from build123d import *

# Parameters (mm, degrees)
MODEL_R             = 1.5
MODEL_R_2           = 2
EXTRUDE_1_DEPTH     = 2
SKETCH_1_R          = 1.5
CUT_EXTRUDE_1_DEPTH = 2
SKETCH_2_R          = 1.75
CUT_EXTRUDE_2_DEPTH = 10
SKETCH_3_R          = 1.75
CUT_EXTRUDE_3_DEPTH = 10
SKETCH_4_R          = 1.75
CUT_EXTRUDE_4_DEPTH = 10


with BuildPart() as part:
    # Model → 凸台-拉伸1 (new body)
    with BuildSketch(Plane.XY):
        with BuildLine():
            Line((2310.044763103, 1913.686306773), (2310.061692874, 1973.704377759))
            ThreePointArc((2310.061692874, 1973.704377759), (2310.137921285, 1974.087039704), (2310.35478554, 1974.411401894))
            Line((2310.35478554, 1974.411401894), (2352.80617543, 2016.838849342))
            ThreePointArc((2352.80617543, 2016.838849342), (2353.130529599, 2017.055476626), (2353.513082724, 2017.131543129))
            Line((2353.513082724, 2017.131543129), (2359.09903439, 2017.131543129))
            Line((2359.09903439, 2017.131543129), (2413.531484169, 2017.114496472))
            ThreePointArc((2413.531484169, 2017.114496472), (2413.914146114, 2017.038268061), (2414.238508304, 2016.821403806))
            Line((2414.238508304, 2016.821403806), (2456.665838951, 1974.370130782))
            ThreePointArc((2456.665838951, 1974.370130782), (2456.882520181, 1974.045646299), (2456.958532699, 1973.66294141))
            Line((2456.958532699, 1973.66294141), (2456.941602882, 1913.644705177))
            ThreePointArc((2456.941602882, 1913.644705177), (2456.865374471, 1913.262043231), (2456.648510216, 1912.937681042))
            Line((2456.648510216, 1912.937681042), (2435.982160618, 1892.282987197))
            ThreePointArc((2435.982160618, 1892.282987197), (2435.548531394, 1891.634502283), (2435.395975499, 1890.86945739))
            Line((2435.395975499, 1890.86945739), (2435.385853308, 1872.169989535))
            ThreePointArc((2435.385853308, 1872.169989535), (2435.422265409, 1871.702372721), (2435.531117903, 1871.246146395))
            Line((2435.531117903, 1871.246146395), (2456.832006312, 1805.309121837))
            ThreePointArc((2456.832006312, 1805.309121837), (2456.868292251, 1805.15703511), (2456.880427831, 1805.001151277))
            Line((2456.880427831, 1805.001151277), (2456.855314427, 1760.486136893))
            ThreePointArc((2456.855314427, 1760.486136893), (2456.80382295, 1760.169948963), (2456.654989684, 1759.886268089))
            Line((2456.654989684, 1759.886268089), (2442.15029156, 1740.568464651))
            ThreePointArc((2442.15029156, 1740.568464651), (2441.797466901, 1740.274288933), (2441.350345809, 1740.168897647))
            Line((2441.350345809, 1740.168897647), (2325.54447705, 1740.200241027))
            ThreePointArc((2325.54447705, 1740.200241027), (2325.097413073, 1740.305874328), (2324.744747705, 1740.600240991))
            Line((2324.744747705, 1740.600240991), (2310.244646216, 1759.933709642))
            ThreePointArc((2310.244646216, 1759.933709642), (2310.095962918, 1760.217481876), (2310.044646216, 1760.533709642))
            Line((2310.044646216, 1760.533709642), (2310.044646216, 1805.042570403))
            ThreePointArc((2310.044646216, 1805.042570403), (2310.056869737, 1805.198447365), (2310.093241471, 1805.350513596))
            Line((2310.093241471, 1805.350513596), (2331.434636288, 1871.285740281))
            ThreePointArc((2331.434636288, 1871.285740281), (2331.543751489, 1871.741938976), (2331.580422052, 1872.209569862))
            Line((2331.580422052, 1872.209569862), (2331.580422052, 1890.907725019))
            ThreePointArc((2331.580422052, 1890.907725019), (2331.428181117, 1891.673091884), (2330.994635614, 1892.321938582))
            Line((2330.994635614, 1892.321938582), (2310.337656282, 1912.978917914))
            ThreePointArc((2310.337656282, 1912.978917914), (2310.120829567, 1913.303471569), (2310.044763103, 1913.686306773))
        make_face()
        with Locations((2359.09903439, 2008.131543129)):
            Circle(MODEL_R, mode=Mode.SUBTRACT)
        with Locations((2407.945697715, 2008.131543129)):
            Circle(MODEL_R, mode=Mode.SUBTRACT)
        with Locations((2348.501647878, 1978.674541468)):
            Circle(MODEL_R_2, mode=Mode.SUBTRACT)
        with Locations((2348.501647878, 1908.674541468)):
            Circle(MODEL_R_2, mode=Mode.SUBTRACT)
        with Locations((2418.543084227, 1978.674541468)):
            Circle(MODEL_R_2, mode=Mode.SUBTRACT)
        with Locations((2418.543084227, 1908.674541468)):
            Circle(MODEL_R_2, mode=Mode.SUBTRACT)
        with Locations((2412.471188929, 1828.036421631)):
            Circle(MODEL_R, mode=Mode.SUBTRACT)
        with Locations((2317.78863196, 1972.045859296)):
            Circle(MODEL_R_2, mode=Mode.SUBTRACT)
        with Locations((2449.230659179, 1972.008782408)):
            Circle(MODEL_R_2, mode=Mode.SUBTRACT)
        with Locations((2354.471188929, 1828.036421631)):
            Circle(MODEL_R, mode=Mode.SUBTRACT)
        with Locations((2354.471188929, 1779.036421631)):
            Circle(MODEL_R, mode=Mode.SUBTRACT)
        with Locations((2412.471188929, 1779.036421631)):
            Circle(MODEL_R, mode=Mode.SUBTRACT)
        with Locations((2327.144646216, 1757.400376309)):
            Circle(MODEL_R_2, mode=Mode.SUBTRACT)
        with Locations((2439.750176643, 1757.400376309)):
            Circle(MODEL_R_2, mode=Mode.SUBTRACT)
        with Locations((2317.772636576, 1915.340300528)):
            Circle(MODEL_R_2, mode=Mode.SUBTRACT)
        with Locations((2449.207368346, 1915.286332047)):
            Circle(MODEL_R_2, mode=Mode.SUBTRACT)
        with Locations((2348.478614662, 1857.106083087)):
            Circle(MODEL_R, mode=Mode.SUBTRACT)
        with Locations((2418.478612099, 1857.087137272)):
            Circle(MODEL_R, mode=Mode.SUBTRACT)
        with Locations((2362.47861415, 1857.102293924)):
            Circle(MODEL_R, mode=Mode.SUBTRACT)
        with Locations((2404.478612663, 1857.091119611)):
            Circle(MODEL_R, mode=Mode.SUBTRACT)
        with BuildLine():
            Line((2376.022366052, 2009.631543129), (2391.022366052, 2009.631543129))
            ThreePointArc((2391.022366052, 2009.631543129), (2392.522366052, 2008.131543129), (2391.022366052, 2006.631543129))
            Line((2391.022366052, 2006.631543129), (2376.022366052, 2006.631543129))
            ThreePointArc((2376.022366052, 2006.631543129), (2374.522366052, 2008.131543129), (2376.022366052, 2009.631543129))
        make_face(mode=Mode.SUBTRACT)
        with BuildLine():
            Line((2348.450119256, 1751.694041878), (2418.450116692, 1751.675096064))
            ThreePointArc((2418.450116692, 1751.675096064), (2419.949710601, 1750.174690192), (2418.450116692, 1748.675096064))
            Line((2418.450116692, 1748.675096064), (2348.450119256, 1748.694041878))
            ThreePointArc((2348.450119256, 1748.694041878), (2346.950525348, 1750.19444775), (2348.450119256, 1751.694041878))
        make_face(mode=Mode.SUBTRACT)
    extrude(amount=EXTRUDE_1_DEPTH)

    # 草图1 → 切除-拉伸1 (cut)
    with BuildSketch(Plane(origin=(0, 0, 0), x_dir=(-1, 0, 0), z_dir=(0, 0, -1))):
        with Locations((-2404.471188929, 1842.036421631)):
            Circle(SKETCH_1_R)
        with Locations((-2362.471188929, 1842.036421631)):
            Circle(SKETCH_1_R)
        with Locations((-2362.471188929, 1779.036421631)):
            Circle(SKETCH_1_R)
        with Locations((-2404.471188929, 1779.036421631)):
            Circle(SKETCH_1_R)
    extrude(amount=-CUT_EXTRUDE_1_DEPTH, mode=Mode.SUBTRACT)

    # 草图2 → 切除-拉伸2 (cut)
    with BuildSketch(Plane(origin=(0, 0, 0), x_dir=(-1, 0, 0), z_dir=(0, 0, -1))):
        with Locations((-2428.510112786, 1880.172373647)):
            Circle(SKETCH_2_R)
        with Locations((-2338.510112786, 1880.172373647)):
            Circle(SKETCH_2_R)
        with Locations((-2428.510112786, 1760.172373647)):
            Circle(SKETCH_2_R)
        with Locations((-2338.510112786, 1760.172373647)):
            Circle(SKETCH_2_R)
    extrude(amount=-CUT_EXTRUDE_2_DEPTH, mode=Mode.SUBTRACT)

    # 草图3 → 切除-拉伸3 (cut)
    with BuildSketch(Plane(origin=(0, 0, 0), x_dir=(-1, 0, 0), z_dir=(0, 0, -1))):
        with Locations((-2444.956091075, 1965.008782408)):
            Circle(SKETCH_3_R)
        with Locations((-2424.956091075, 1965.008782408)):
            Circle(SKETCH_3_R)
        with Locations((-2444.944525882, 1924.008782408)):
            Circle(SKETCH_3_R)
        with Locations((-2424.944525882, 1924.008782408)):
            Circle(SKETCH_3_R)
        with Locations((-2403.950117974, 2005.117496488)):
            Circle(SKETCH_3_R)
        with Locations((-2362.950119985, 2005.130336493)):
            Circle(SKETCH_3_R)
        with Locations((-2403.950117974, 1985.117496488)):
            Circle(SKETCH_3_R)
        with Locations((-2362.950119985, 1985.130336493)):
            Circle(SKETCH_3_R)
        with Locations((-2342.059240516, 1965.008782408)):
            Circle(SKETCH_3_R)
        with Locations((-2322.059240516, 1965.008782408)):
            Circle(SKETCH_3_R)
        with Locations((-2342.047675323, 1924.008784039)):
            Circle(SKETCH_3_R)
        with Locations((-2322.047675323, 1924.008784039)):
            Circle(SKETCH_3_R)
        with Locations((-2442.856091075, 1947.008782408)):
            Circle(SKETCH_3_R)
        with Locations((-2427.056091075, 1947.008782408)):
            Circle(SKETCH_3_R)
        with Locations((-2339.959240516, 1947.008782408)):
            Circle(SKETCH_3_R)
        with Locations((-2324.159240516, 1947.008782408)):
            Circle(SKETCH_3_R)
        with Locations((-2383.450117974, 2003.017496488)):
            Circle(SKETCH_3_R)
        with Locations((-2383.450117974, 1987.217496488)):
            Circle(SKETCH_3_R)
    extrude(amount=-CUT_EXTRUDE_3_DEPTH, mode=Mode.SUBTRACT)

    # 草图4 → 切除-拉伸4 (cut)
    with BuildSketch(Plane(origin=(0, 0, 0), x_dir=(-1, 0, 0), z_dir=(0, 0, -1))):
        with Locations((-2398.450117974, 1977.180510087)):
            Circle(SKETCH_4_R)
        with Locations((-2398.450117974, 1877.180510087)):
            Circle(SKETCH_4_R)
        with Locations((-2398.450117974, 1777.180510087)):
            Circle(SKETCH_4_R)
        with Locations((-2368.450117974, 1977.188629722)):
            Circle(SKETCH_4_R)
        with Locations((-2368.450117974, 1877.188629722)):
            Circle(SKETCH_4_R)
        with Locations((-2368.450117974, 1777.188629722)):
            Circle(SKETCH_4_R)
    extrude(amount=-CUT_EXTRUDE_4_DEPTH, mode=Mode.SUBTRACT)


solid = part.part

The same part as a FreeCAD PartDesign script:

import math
import FreeCAD as App
import Part
import Sketcher
Q = App.Units.Quantity

doc = App.newDocument("Part")
body = doc.addObject("PartDesign::Body", "Body")

# Sketch on XY plane
sketch1 = body.newObject("Sketcher::SketchObject", "Sketch")
sketch1.AttachmentSupport = (doc.getObject("XY_Plane"), [""])
sketch1.MapMode = "FlatFace"
sketch1.addGeometry(Part.LineSegment(App.Vector(2310.061693, 1973.704378, 0), App.Vector(2310.044763, 1913.686307, 0)), False)
sketch1.addGeometry(Part.ArcOfCircle(Part.Circle(App.Vector(2311.044763, 1913.686025, 0), App.Vector(0, 0, 1), 1), math.radians(179.983838), math.radians(225)), False)
sketch1.addGeometry(Part.LineSegment(App.Vector(2310.337656, 1912.978918, 0), App.Vector(2330.994636, 1892.321939, 0)), False)
sketch1.addGeometry(Part.ArcOfCircle(Part.Circle(App.Vector(2329.580422, 1890.907725, 0), App.Vector(0, 0, 1), 2), math.radians(0), math.radians(45)), False)
sketch1.addGeometry(Part.LineSegment(App.Vector(2331.580422, 1890.907725, 0), App.Vector(2331.580422, 1872.20957, 0)), False)
sketch1.addGeometry(Part.ArcOfCircle(Part.Circle(App.Vector(2328.580422, 1872.20957, 0), App.Vector(0, 0, 1), 3), math.radians(-17.935321), math.radians(0)), False)
sketch1.addGeometry(Part.LineSegment(App.Vector(2331.434636, 1871.28574, 0), App.Vector(2310.093241, 1805.350514, 0)), False)
sketch1.addGeometry(Part.ArcOfCircle(Part.Circle(App.Vector(2311.044646, 1805.04257, 0), App.Vector(0, 0, 1), 1), math.radians(162.064678), math.radians(180)), False)
sketch1.addGeometry(Part.LineSegment(App.Vector(2310.044646, 1805.04257, 0), App.Vector(2310.044646, 1760.53371, 0)), False)
sketch1.addGeometry(Part.ArcOfCircle(Part.Circle(App.Vector(2311.044646, 1760.53371, 0), App.Vector(0, 0, 1), 1), math.radians(180), math.radians(216.869898)), False)
sketch1.addGeometry(Part.LineSegment(App.Vector(2310.244646, 1759.93371, 0), App.Vector(2324.744748, 1740.600241, 0)), False)
sketch1.addGeometry(Part.ArcOfCircle(Part.Circle(App.Vector(2325.544748, 1741.200241, 0), App.Vector(0, 0, 1), 1), math.radians(-143.130102), math.radians(-90.015507)), False)
sketch1.addGeometry(Part.LineSegment(App.Vector(2325.544477, 1740.200241, 0), App.Vector(2441.350346, 1740.168898, 0)), False)
sketch1.addGeometry(Part.ArcOfCircle(Part.Circle(App.Vector(2441.350616, 1741.168898, 0), App.Vector(0, 0, 1), 1), math.radians(-90.015507), math.radians(-36.900912)), False)
sketch1.addGeometry(Part.LineSegment(App.Vector(2442.150292, 1740.568465, 0), App.Vector(2456.65499, 1759.886268, 0)), False)
sketch1.addGeometry(Part.ArcOfCircle(Part.Circle(App.Vector(2455.855315, 1760.486701, 0), App.Vector(0, 0, 1), 1), math.radians(-36.900912), math.radians(-0.032324)), False)
sketch1.addGeometry(Part.LineSegment(App.Vector(2456.855314, 1760.486137, 0), App.Vector(2456.880428, 1805.001151, 0)), False)
sketch1.addGeometry(Part.ArcOfCircle(Part.Circle(App.Vector(2455.880428, 1805.001715, 0), App.Vector(0, 0, 1), 1), math.radians(-0.032324), math.radians(17.902998)), False)
sketch1.addGeometry(Part.LineSegment(App.Vector(2456.832006, 1805.309122, 0), App.Vector(2435.531118, 1871.246146, 0)), False)
sketch1.addGeometry(Part.ArcOfCircle(Part.Circle(App.Vector(2438.385853, 1872.168366, 0), App.Vector(0, 0, 1), 3), math.radians(179.968985), math.radians(197.902998)), False)
sketch1.addGeometry(Part.LineSegment(App.Vector(2435.385853, 1872.16999, 0), App.Vector(2435.395975, 1890.869457, 0)), False)
sketch1.addGeometry(Part.ArcOfCircle(Part.Circle(App.Vector(2437.395975, 1890.868375, 0), App.Vector(0, 0, 1), 2), math.radians(134.983838), math.radians(179.968985)), False)
sketch1.addGeometry(Part.LineSegment(App.Vector(2435.982161, 1892.282987, 0), App.Vector(2456.64851, 1912.937681, 0)), False)
sketch1.addGeometry(Part.ArcOfCircle(Part.Circle(App.Vector(2455.941603, 1913.644987, 0), App.Vector(0, 0, 1), 1), math.radians(-45.016162), math.radians(-0.016162)), False)
sketch1.addGeometry(Part.LineSegment(App.Vector(2456.941603, 1913.644705, 0), App.Vector(2456.958533, 1973.662941, 0)), False)
sketch1.addGeometry(Part.ArcOfCircle(Part.Circle(App.Vector(2455.958533, 1973.663223, 0), App.Vector(0, 0, 1), 1), math.radians(-0.016162), math.radians(44.983838)), False)
sketch1.addGeometry(Part.LineSegment(App.Vector(2456.665839, 1974.370131, 0), App.Vector(2414.238508, 2016.821404, 0)), False)
sketch1.addGeometry(Part.ArcOfCircle(Part.Circle(App.Vector(2413.531202, 2016.114497, 0), App.Vector(0, 0, 1), 1), math.radians(44.983838), math.radians(89.983838)), False)
sketch1.addGeometry(Part.LineSegment(App.Vector(2413.531484, 2017.114496, 0), App.Vector(2359.099034, 2017.131543, 0)), False)
sketch1.addGeometry(Part.LineSegment(App.Vector(2359.099034, 2017.131543, 0), App.Vector(2353.513083, 2017.131543, 0)), False)
sketch1.addGeometry(Part.ArcOfCircle(Part.Circle(App.Vector(2353.513083, 2016.131543, 0), App.Vector(0, 0, 1), 1), math.radians(90), math.radians(134.983838)), False)
sketch1.addGeometry(Part.LineSegment(App.Vector(2352.806175, 2016.838849, 0), App.Vector(2310.354786, 1974.411402, 0)), False)
sketch1.addGeometry(Part.ArcOfCircle(Part.Circle(App.Vector(2311.061693, 1973.704096, 0), App.Vector(0, 0, 1), 1), math.radians(134.983838), math.radians(179.983838)), False)
sketch1.addGeometry(Part.Circle(App.Vector(2439.750177, 1757.400376, 0), App.Vector(0, 0, 1), 2), False)
sketch1.addGeometry(Part.Circle(App.Vector(2412.471189, 1779.036422, 0), App.Vector(0, 0, 1), 1.5), False)
sketch1.addGeometry(Part.Circle(App.Vector(2418.478612, 1857.087137, 0), App.Vector(0, 0, 1), 1.5), False)
sketch1.addGeometry(Part.Circle(App.Vector(2412.471189, 1828.036422, 0), App.Vector(0, 0, 1), 1.5), False)
sketch1.addGeometry(Part.Circle(App.Vector(2404.478613, 1857.09112, 0), App.Vector(0, 0, 1), 1.5), False)
sketch1.addGeometry(Part.LineSegment(App.Vector(2348.450119, 1751.694042, 0), App.Vector(2418.450117, 1751.675096, 0)), False)
sketch1.addGeometry(Part.ArcOfCircle(Part.Circle(App.Vector(2418.449711, 1750.175096, 0), App.Vector(0, 0, 1), 1.5), math.radians(-89.984488), math.radians(89.984488)), False)
sketch1.addGeometry(Part.LineSegment(App.Vector(2418.450117, 1748.675096, 0), App.Vector(2348.450119, 1748.694042, 0)), False)
sketch1.addGeometry(Part.ArcOfCircle(Part.Circle(App.Vector(2348.450525, 1750.194042, 0), App.Vector(0, 0, 1), 1.5), math.radians(90.015512), math.radians(269.984488)), False)
sketch1.addGeometry(Part.Circle(App.Vector(2354.471189, 1779.036422, 0), App.Vector(0, 0, 1), 1.5), False)
sketch1.addGeometry(Part.Circle(App.Vector(2327.144646, 1757.400376, 0), App.Vector(0, 0, 1), 2), False)
sketch1.addGeometry(Part.Circle(App.Vector(2354.471189, 1828.036422, 0), App.Vector(0, 0, 1), 1.5), False)
sketch1.addGeometry(Part.Circle(App.Vector(2362.478614, 1857.102294, 0), App.Vector(0, 0, 1), 1.5), False)
sketch1.addGeometry(Part.Circle(App.Vector(2348.478615, 1857.106083, 0), App.Vector(0, 0, 1), 1.5), False)
sketch1.addGeometry(Part.Circle(App.Vector(2418.543084, 1908.674541, 0), App.Vector(0, 0, 1), 2), False)
sketch1.addGeometry(Part.Circle(App.Vector(2449.207368, 1915.286332, 0), App.Vector(0, 0, 1), 2), False)
sketch1.addGeometry(Part.Circle(App.Vector(2449.230659, 1972.008782, 0), App.Vector(0, 0, 1), 2), False)
sketch1.addGeometry(Part.Circle(App.Vector(2418.543084, 1978.674541, 0), App.Vector(0, 0, 1), 2), False)
sketch1.addGeometry(Part.Circle(App.Vector(2407.945698, 2008.131543, 0), App.Vector(0, 0, 1), 1.5), False)
sketch1.addGeometry(Part.LineSegment(App.Vector(2376.022366, 2009.631543, 0), App.Vector(2391.022366, 2009.631543, 0)), False)
sketch1.addGeometry(Part.ArcOfCircle(Part.Circle(App.Vector(2391.022366, 2008.131543, 0), App.Vector(0, 0, 1), 1.5), math.radians(-90), math.radians(90)), False)
sketch1.addGeometry(Part.LineSegment(App.Vector(2391.022366, 2006.631543, 0), App.Vector(2376.022366, 2006.631543, 0)), False)
sketch1.addGeometry(Part.ArcOfCircle(Part.Circle(App.Vector(2376.022366, 2008.131543, 0), App.Vector(0, 0, 1), 1.5), math.radians(90), math.radians(270)), False)
sketch1.addGeometry(Part.Circle(App.Vector(2348.501648, 1908.674541, 0), App.Vector(0, 0, 1), 2), False)
sketch1.addGeometry(Part.Circle(App.Vector(2317.772637, 1915.340301, 0), App.Vector(0, 0, 1), 2), False)
sketch1.addGeometry(Part.Circle(App.Vector(2359.099034, 2008.131543, 0), App.Vector(0, 0, 1), 1.5), False)
sketch1.addGeometry(Part.Circle(App.Vector(2317.788632, 1972.045859, 0), App.Vector(0, 0, 1), 2), False)
sketch1.addGeometry(Part.Circle(App.Vector(2348.501648, 1978.674541, 0), App.Vector(0, 0, 1), 2), False)
sketch1.addConstraint(Sketcher.Constraint("Coincident", 0, 2, 1, 1))
sketch1.addConstraint(Sketcher.Constraint("Coincident", 1, 2, 2, 1))
sketch1.addConstraint(Sketcher.Constraint("Coincident", 2, 2, 3, 2))
sketch1.addConstraint(Sketcher.Constraint("Coincident", 3, 1, 4, 1))
sketch1.addConstraint(Sketcher.Constraint("Coincident", 4, 2, 5, 2))
sketch1.addConstraint(Sketcher.Constraint("Coincident", 5, 1, 6, 1))
sketch1.addConstraint(Sketcher.Constraint("Coincident", 6, 2, 7, 1))
sketch1.addConstraint(Sketcher.Constraint("Coincident", 7, 2, 8, 1))
sketch1.addConstraint(Sketcher.Constraint("Coincident", 8, 2, 9, 1))
sketch1.addConstraint(Sketcher.Constraint("Coincident", 9, 2, 10, 1))
sketch1.addConstraint(Sketcher.Constraint("Coincident", 10, 2, 11, 1))
sketch1.addConstraint(Sketcher.Constraint("Coincident", 11, 2, 12, 1))
sketch1.addConstraint(Sketcher.Constraint("Coincident", 12, 2, 13, 1))
sketch1.addConstraint(Sketcher.Constraint("Coincident", 13, 2, 14, 1))
sketch1.addConstraint(Sketcher.Constraint("Coincident", 14, 2, 15, 1))
sketch1.addConstraint(Sketcher.Constraint("Coincident", 15, 2, 16, 1))
sketch1.addConstraint(Sketcher.Constraint("Coincident", 16, 2, 17, 1))
sketch1.addConstraint(Sketcher.Constraint("Coincident", 17, 2, 18, 1))
sketch1.addConstraint(Sketcher.Constraint("Coincident", 18, 2, 19, 2))
sketch1.addConstraint(Sketcher.Constraint("Coincident", 19, 1, 20, 1))
sketch1.addConstraint(Sketcher.Constraint("Coincident", 20, 2, 21, 2))
sketch1.addConstraint(Sketcher.Constraint("Coincident", 21, 1, 22, 1))
sketch1.addConstraint(Sketcher.Constraint("Coincident", 22, 2, 23, 1))
sketch1.addConstraint(Sketcher.Constraint("Coincident", 23, 2, 24, 1))
sketch1.addConstraint(Sketcher.Constraint("Coincident", 24, 2, 25, 1))
sketch1.addConstraint(Sketcher.Constraint("Coincident", 25, 2, 26, 1))
sketch1.addConstraint(Sketcher.Constraint("Coincident", 26, 2, 27, 1))
sketch1.addConstraint(Sketcher.Constraint("Coincident", 27, 2, 28, 1))
sketch1.addConstraint(Sketcher.Constraint("Coincident", 28, 2, 29, 1))
sketch1.addConstraint(Sketcher.Constraint("Coincident", 29, 2, 30, 1))
sketch1.addConstraint(Sketcher.Constraint("Coincident", 30, 2, 31, 1))
sketch1.addConstraint(Sketcher.Constraint("Coincident", 31, 2, 32, 1))
sketch1.addConstraint(Sketcher.Constraint("Coincident", 32, 2, 0, 1))
sketch1.addConstraint(Sketcher.Constraint("Coincident", 38, 2, 39, 2))
sketch1.addConstraint(Sketcher.Constraint("Coincident", 39, 1, 40, 1))
sketch1.addConstraint(Sketcher.Constraint("Coincident", 40, 2, 41, 2))
sketch1.addConstraint(Sketcher.Constraint("Coincident", 41, 1, 38, 1))
sketch1.addConstraint(Sketcher.Constraint("Coincident", 52, 2, 53, 2))
sketch1.addConstraint(Sketcher.Constraint("Coincident", 53, 1, 54, 1))
sketch1.addConstraint(Sketcher.Constraint("Coincident", 54, 2, 55, 2))
sketch1.addConstraint(Sketcher.Constraint("Coincident", 55, 1, 52, 1))
sketch1.addConstraint(Sketcher.Constraint("Vertical", 4))
sketch1.addConstraint(Sketcher.Constraint("Vertical", 8))
sketch1.addConstraint(Sketcher.Constraint("Horizontal", 29))
sketch1.addConstraint(Sketcher.Constraint("Horizontal", 52))
sketch1.addConstraint(Sketcher.Constraint("Horizontal", 54))
sketch1.addConstraint(Sketcher.Constraint("Diameter", 33, Q("4 mm")))
sketch1.addConstraint(Sketcher.Constraint("Diameter", 34, Q("3 mm")))
sketch1.addConstraint(Sketcher.Constraint("Diameter", 35, Q("3 mm")))
sketch1.addConstraint(Sketcher.Constraint("Diameter", 36, Q("3 mm")))
sketch1.addConstraint(Sketcher.Constraint("Diameter", 37, Q("3 mm")))
sketch1.addConstraint(Sketcher.Constraint("Diameter", 42, Q("3 mm")))
sketch1.addConstraint(Sketcher.Constraint("Diameter", 43, Q("4 mm")))
sketch1.addConstraint(Sketcher.Constraint("Diameter", 44, Q("3 mm")))
sketch1.addConstraint(Sketcher.Constraint("Diameter", 45, Q("3 mm")))
sketch1.addConstraint(Sketcher.Constraint("Diameter", 46, Q("3 mm")))
sketch1.addConstraint(Sketcher.Constraint("Diameter", 47, Q("4 mm")))
sketch1.addConstraint(Sketcher.Constraint("Diameter", 48, Q("4 mm")))
sketch1.addConstraint(Sketcher.Constraint("Diameter", 49, Q("4 mm")))
sketch1.addConstraint(Sketcher.Constraint("Diameter", 50, Q("4 mm")))
sketch1.addConstraint(Sketcher.Constraint("Diameter", 51, Q("3 mm")))
sketch1.addConstraint(Sketcher.Constraint("Diameter", 56, Q("4 mm")))
sketch1.addConstraint(Sketcher.Constraint("Diameter", 57, Q("4 mm")))
sketch1.addConstraint(Sketcher.Constraint("Diameter", 58, Q("3 mm")))
sketch1.addConstraint(Sketcher.Constraint("Diameter", 59, Q("4 mm")))
sketch1.addConstraint(Sketcher.Constraint("Diameter", 60, Q("4 mm")))
sketch1.addConstraint(Sketcher.Constraint("Radius", 1, Q("1 mm")))
sketch1.addConstraint(Sketcher.Constraint("Radius", 3, Q("2 mm")))
sketch1.addConstraint(Sketcher.Constraint("Radius", 5, Q("3 mm")))
sketch1.addConstraint(Sketcher.Constraint("Radius", 7, Q("1 mm")))
sketch1.addConstraint(Sketcher.Constraint("Radius", 9, Q("1 mm")))
sketch1.addConstraint(Sketcher.Constraint("Radius", 11, Q("1 mm")))
sketch1.addConstraint(Sketcher.Constraint("Radius", 13, Q("1 mm")))
sketch1.addConstraint(Sketcher.Constraint("Radius", 15, Q("1 mm")))
sketch1.addConstraint(Sketcher.Constraint("Radius", 17, Q("1 mm")))
sketch1.addConstraint(Sketcher.Constraint("Radius", 19, Q("3 mm")))
sketch1.addConstraint(Sketcher.Constraint("Radius", 21, Q("2 mm")))
sketch1.addConstraint(Sketcher.Constraint("Radius", 23, Q("1 mm")))
sketch1.addConstraint(Sketcher.Constraint("Radius", 25, Q("1 mm")))
sketch1.addConstraint(Sketcher.Constraint("Radius", 27, Q("1 mm")))
sketch1.addConstraint(Sketcher.Constraint("Radius", 30, Q("1 mm")))
sketch1.addConstraint(Sketcher.Constraint("Radius", 32, Q("1 mm")))
sketch1.addConstraint(Sketcher.Constraint("Radius", 39, Q("1.5 mm")))
sketch1.addConstraint(Sketcher.Constraint("Radius", 41, Q("1.5 mm")))
sketch1.addConstraint(Sketcher.Constraint("Radius", 53, Q("1.5 mm")))
sketch1.addConstraint(Sketcher.Constraint("DistanceX", 52, 1, 52, 2, Q("15 mm")))
sketch1.addConstraint(Sketcher.Constraint("DistanceX", 54, 2, 54, 1, Q("15 mm")))
sketch1.addConstraint(Sketcher.Constraint("Distance", 38, Q("70 mm")))
sketch1.addConstraint(Sketcher.Constraint("Distance", 40, Q("70 mm")))
sketch1.addConstraint(Sketcher.Constraint("DistanceX", 29, 2, 29, 1, Q("5.585952 mm")))
sketch1.addConstraint(Sketcher.Constraint("DistanceY", 8, 2, 8, 1, Q("44.508861 mm")))
sketch1.addConstraint(Sketcher.Constraint("DistanceY", -1, 1, 15, 3, Q("1760.486701 mm")))
sketch1.addConstraint(Sketcher.Constraint("DistanceY", -1, 1, 57, 3, Q("1915.340301 mm")))
sketch1.addConstraint(Sketcher.Constraint("DistanceY", -1, 1, 31, 2, Q("1974.411402 mm")))
sketch1.addConstraint(Sketcher.Constraint("Distance", 2, Q("29.21338 mm")))
sketch1.addConstraint(Sketcher.Constraint("Distance", 16, Q("44.515021 mm")))
sketch1.addConstraint(Sketcher.Constraint("Distance", 20, Q("18.699471 mm")))
sketch1.addConstraint(Sketcher.Constraint("Distance", 22, Q("29.218391 mm")))
sketch1.addConstraint(Sketcher.Constraint("Distance", 24, Q("60.018239 mm")))
sketch1.addConstraint(Sketcher.Constraint("Distance", 26, Q("60.018239 mm")))
sketch1.addConstraint(Sketcher.Constraint("DistanceY", 4, 2, 4, 1, Q("18.698155 mm")))
sketch1.addConstraint(Sketcher.Constraint("DistanceY", -1, 1, 5, 3, Q("1872.20957 mm")))
sketch1.addConstraint(Sketcher.Constraint("DistanceY", -1, 1, 7, 3, Q("1805.04257 mm")))
sketch1.addConstraint(Sketcher.Constraint("DistanceY", -1, 1, 9, 3, Q("1760.53371 mm")))
sketch1.addConstraint(Sketcher.Constraint("DistanceY", -1, 1, 11, 3, Q("1741.200241 mm")))
sketch1.addConstraint(Sketcher.Constraint("DistanceX", -1, 1, 34, 3, Q("2412.471189 mm")))
sketch1.addConstraint(Sketcher.Constraint("DistanceY", -1, 1, 34, 3, Q("1779.036422 mm")))
sketch1.addConstraint(Sketcher.Constraint("DistanceX", -1, 1, 36, 3, Q("2412.471189 mm")))
sketch1.addConstraint(Sketcher.Constraint("DistanceY", -1, 1, 36, 3, Q("1828.036422 mm")))
sketch1.addConstraint(Sketcher.Constraint("DistanceY", -1, 1, 37, 3, Q("1857.09112 mm")))
sketch1.addConstraint(Sketcher.Constraint("DistanceX", -1, 1, 39, 3, Q("2418.449711 mm")))
sketch1.addConstraint(Sketcher.Constraint("DistanceY", -1, 1, 41, 3, Q("1750.194042 mm")))
sketch1.addConstraint(Sketcher.Constraint("DistanceX", -1, 1, 42, 3, Q("2354.471189 mm")))
sketch1.addConstraint(Sketcher.Constraint("DistanceY", -1, 1, 42, 3, Q("1779.036422 mm")))
sketch1.addConstraint(Sketcher.Constraint("DistanceX", -1, 1, 44, 3, Q("2354.471189 mm")))
sketch1.addConstraint(Sketcher.Constraint("DistanceY", -1, 1, 44, 3, Q("1828.036422 mm")))
sketch1.addConstraint(Sketcher.Constraint("DistanceY", -1, 1, 47, 3, Q("1908.674541 mm")))
sketch1.addConstraint(Sketcher.Constraint("DistanceX", -1, 1, 48, 3, Q("2449.207368 mm")))
sketch1.addConstraint(Sketcher.Constraint("DistanceX", -1, 1, 49, 3, Q("2449.230659 mm")))
sketch1.addConstraint(Sketcher.Constraint("DistanceY", -1, 1, 50, 3, Q("1978.674541 mm")))
sketch1.addConstraint(Sketcher.Constraint("DistanceY", -1, 1, 56, 3, Q("1908.674541 mm")))
sketch1.addConstraint(Sketcher.Constraint("DistanceX", -1, 1, 59, 3, Q("2317.788632 mm")))
sketch1.addConstraint(Sketcher.Constraint("DistanceY", -1, 1, 59, 3, Q("1972.045859 mm")))
sketch1.addConstraint(Sketcher.Constraint("DistanceY", -1, 1, 60, 3, Q("1978.674541 mm")))
sketch1.addConstraint(Sketcher.Constraint("DistanceY", -1, 1, 2, 2, Q("1892.321939 mm")))
sketch1.addConstraint(Sketcher.Constraint("DistanceY", -1, 1, 4, 2, Q("1872.20957 mm")))
sketch1.addConstraint(Sketcher.Constraint("DistanceY", -1, 1, 5, 1, Q("1871.28574 mm")))
sketch1.addConstraint(Sketcher.Constraint("DistanceX", -1, 1, 6, 2, Q("2310.093241 mm")))
sketch1.addConstraint(Sketcher.Constraint("DistanceY", -1, 1, 7, 2, Q("1805.04257 mm")))
sketch1.addConstraint(Sketcher.Constraint("DistanceY", -1, 1, 9, 2, Q("1759.93371 mm")))
sketch1.addConstraint(Sketcher.Constraint("DistanceY", -1, 1, 10, 2, Q("1740.600241 mm")))
sketch1.addConstraint(Sketcher.Constraint("DistanceX", -1, 1, 13, 2, Q("2442.150292 mm")))
sketch1.addConstraint(Sketcher.Constraint("DistanceX", -1, 1, 14, 2, Q("2456.65499 mm")))
sketch1.addConstraint(Sketcher.Constraint("DistanceY", -1, 1, 14, 2, Q("1759.886268 mm")))
sketch1.addConstraint(Sketcher.Constraint("DistanceY", -1, 1, 16, 2, Q("1805.001151 mm")))
sketch1.addConstraint(Sketcher.Constraint("DistanceY", -1, 1, 17, 2, Q("1805.309122 mm")))
sketch1.addConstraint(Sketcher.Constraint("DistanceY", -1, 1, 19, 1, Q("1872.16999 mm")))
sketch1.addConstraint(Sketcher.Constraint("DistanceX", -1, 1, 21, 1, Q("2435.982161 mm")))
sketch1.addConstraint(Sketcher.Constraint("DistanceX", -1, 1, 22, 2, Q("2456.64851 mm")))
sketch1.addConstraint(Sketcher.Constraint("DistanceY", -1, 1, 22, 2, Q("1912.937681 mm")))
sketch1.addConstraint(Sketcher.Constraint("DistanceY", -1, 1, 24, 2, Q("1973.662941 mm")))
sketch1.addConstraint(Sketcher.Constraint("DistanceX", -1, 1, 25, 2, Q("2456.665839 mm")))
sketch1.addConstraint(Sketcher.Constraint("DistanceY", -1, 1, 25, 2, Q("1974.370131 mm")))
sketch1.addConstraint(Sketcher.Constraint("DistanceX", -1, 1, 26, 2, Q("2414.238508 mm")))
sketch1.addConstraint(Sketcher.Constraint("DistanceY", -1, 1, 30, 2, Q("2016.838849 mm")))
sketch1.addConstraint(Sketcher.Constraint("DistanceX", -1, 1, 40, 2, Q("2348.450119 mm")))
sketch1.addConstraint(Sketcher.Constraint("DistanceX", -1, 1, 41, 1, Q("2348.450119 mm")))
sketch1.addConstraint(Sketcher.Constraint("Distance", 0, Q("60.018073 mm")))
sketch1.addConstraint(Sketcher.Constraint("Distance", 6, Q("69.303025 mm")))
sketch1.addConstraint(Sketcher.Constraint("Distance", 10, Q("24.166836 mm")))
sketch1.addConstraint(Sketcher.Constraint("Distance", 12, Q("115.805873 mm")))
sketch1.addConstraint(Sketcher.Constraint("Distance", 14, Q("24.157065 mm")))
sketch1.addConstraint(Sketcher.Constraint("Distance", 18, Q("69.292273 mm")))
sketch1.addConstraint(Sketcher.Constraint("Distance", 28, Q("54.432452 mm")))
sketch1.addConstraint(Sketcher.Constraint("Distance", 31, Q("60.018404 mm")))
sketch1.addConstraint(Sketcher.Constraint("DistanceX", -1, 1, 1, 3, Q("2311.044763 mm")))
sketch1.addConstraint(Sketcher.Constraint("DistanceY", -1, 1, 1, 3, Q("1913.686025 mm")))
sketch1.addConstraint(Sketcher.Constraint("DistanceX", -1, 1, 3, 3, Q("2329.580422 mm")))
sketch1.addConstraint(Sketcher.Constraint("DistanceY", -1, 1, 3, 3, Q("1890.907725 mm")))
sketch1.addConstraint(Sketcher.Constraint("DistanceX", -1, 1, 13, 3, Q("2441.350616 mm")))
sketch1.addConstraint(Sketcher.Constraint("DistanceX", -1, 1, 17, 3, Q("2455.880428 mm")))
sketch1.addConstraint(Sketcher.Constraint("DistanceY", -1, 1, 17, 3, Q("1805.001715 mm")))
sketch1.addConstraint(Sketcher.Constraint("DistanceX", -1, 1, 19, 3, Q("2438.385853 mm")))
sketch1.addConstraint(Sketcher.Constraint("DistanceY", -1, 1, 19, 3, Q("1872.168366 mm")))
sketch1.addConstraint(Sketcher.Constraint("DistanceX", -1, 1, 21, 3, Q("2437.395975 mm")))
sketch1.addConstraint(Sketcher.Constraint("DistanceX", -1, 1, 23, 3, Q("2455.941603 mm")))
sketch1.addConstraint(Sketcher.Constraint("DistanceX", -1, 1, 25, 3, Q("2455.958533 mm")))
sketch1.addConstraint(Sketcher.Constraint("DistanceX", -1, 1, 27, 3, Q("2413.531202 mm")))
sketch1.addConstraint(Sketcher.Constraint("DistanceX", -1, 1, 30, 3, Q("2353.513083 mm")))
sketch1.addConstraint(Sketcher.Constraint("DistanceY", -1, 1, 30, 3, Q("2016.131543 mm")))
sketch1.addConstraint(Sketcher.Constraint("DistanceX", -1, 1, 32, 3, Q("2311.061693 mm")))
sketch1.addConstraint(Sketcher.Constraint("DistanceX", -1, 1, 33, 3, Q("2439.750177 mm")))
sketch1.addConstraint(Sketcher.Constraint("DistanceY", -1, 1, 33, 3, Q("1757.400376 mm")))
sketch1.addConstraint(Sketcher.Constraint("DistanceX", -1, 1, 35, 3, Q("2418.478612 mm")))
sketch1.addConstraint(Sketcher.Constraint("DistanceY", -1, 1, 35, 3, Q("1857.087137 mm")))
sketch1.addConstraint(Sketcher.Constraint("DistanceX", -1, 1, 37, 3, Q("2404.478613 mm")))
sketch1.addConstraint(Sketcher.Constraint("DistanceY", -1, 1, 39, 3, Q("1750.175096 mm")))
sketch1.addConstraint(Sketcher.Constraint("DistanceX", -1, 1, 41, 3, Q("2348.450525 mm")))
sketch1.addConstraint(Sketcher.Constraint("DistanceX", -1, 1, 43, 3, Q("2327.144646 mm")))
sketch1.addConstraint(Sketcher.Constraint("DistanceY", -1, 1, 43, 3, Q("1757.400376 mm")))
sketch1.addConstraint(Sketcher.Constraint("DistanceX", -1, 1, 45, 3, Q("2362.478614 mm")))
sketch1.addConstraint(Sketcher.Constraint("DistanceY", -1, 1, 45, 3, Q("1857.102294 mm")))
sketch1.addConstraint(Sketcher.Constraint("DistanceX", -1, 1, 46, 3, Q("2348.478615 mm")))
sketch1.addConstraint(Sketcher.Constraint("DistanceY", -1, 1, 46, 3, Q("1857.106083 mm")))
sketch1.addConstraint(Sketcher.Constraint("DistanceX", -1, 1, 47, 3, Q("2418.543084 mm")))
sketch1.addConstraint(Sketcher.Constraint("DistanceY", -1, 1, 48, 3, Q("1915.286332 mm")))
sketch1.addConstraint(Sketcher.Constraint("DistanceY", -1, 1, 49, 3, Q("1972.008782 mm")))
sketch1.addConstraint(Sketcher.Constraint("DistanceX", -1, 1, 50, 3, Q("2418.543084 mm")))
sketch1.addConstraint(Sketcher.Constraint("DistanceX", -1, 1, 51, 3, Q("2407.945698 mm")))
sketch1.addConstraint(Sketcher.Constraint("DistanceY", -1, 1, 51, 3, Q("2008.131543 mm")))
sketch1.addConstraint(Sketcher.Constraint("DistanceX", -1, 1, 53, 3, Q("2391.022366 mm")))
sketch1.addConstraint(Sketcher.Constraint("DistanceY", -1, 1, 53, 3, Q("2008.131543 mm")))
sketch1.addConstraint(Sketcher.Constraint("DistanceX", -1, 1, 55, 3, Q("2376.022366 mm")))
sketch1.addConstraint(Sketcher.Constraint("DistanceX", -1, 1, 56, 3, Q("2348.501648 mm")))
sketch1.addConstraint(Sketcher.Constraint("DistanceX", -1, 1, 57, 3, Q("2317.772637 mm")))
sketch1.addConstraint(Sketcher.Constraint("DistanceX", -1, 1, 58, 3, Q("2359.099034 mm")))
sketch1.addConstraint(Sketcher.Constraint("DistanceY", -1, 1, 58, 3, Q("2008.131543 mm")))
sketch1.addConstraint(Sketcher.Constraint("DistanceX", -1, 1, 60, 3, Q("2348.501648 mm")))
sketch1.addConstraint(Sketcher.Constraint("DistanceY", -1, 1, 0, 2, Q("1913.686307 mm")))
sketch1.addConstraint(Sketcher.Constraint("DistanceX", -1, 1, 11, 2, Q("2325.544477 mm")))
sketch1.addConstraint(Sketcher.Constraint("DistanceX", -1, 1, 27, 2, Q("2413.531484 mm")))
sketch1.addConstraint(Sketcher.Constraint("DistanceX", -1, 1, 52, 2, Q("2391.022366 mm")))
sketch1.addConstraint(Sketcher.Constraint("DistanceX", -1, 1, 53, 1, Q("2391.022366 mm")))
pad1 = body.newObject("PartDesign::Pad", "Pad")
pad1.Profile = sketch1
pad1.Length = 2

# Sketch on XY plane
sketch2 = body.newObject("Sketcher::SketchObject", "Sketch001")
sketch2.AttachmentSupport = (doc.getObject("XY_Plane"), [""])
sketch2.MapMode = "FlatFace"
sketch2.addGeometry(Part.Circle(App.Vector(2404.5, 1842, 0), App.Vector(0, 0, 1), 1.5), False)
sketch2.addGeometry(Part.Circle(App.Vector(2362.5, 1842, 0), App.Vector(0, 0, 1), 1.5), False)
sketch2.addGeometry(Part.Circle(App.Vector(2362.5, 1779, 0), App.Vector(0, 0, 1), 1.5), False)
sketch2.addGeometry(Part.Circle(App.Vector(2404.5, 1779, 0), App.Vector(0, 0, 1), 1.5), False)
sketch2.addConstraint(Sketcher.Constraint("Equal", 0, 1))
sketch2.addConstraint(Sketcher.Constraint("Equal", 1, 2))
sketch2.addConstraint(Sketcher.Constraint("Equal", 2, 3))
sketch2.addConstraint(Sketcher.Constraint("Horizontal", 0, 3, 1, 3))
sketch2.addConstraint(Sketcher.Constraint("Horizontal", 2, 3, 3, 3))
sketch2.addConstraint(Sketcher.Constraint("Vertical", 1, 3, 2, 3))
sketch2.addConstraint(Sketcher.Constraint("Vertical", 0, 3, 3, 3))
sketch2.addConstraint(Sketcher.Constraint("Diameter", 0, Q("3 mm")))
sketch2.addConstraint(Sketcher.Constraint("DistanceX", 1, 3, 0, 3, Q("42 mm")))
sketch2.addConstraint(Sketcher.Constraint("DistanceY", 2, 3, 1, 3, Q("63 mm")))
sketch2.addConstraint(Sketcher.Constraint("DistanceX", -1, 1, 0, 3, Q("2404.471189 mm")))
sketch2.addConstraint(Sketcher.Constraint("DistanceY", -1, 1, 0, 3, Q("1842.036422 mm")))
pocket1 = body.newObject("PartDesign::Pocket", "Pocket")
pocket1.Profile = sketch2
pocket1.Length = 2
pocket1.Reversed = True

# Sketch on XY plane
sketch3 = body.newObject("Sketcher::SketchObject", "Sketch002")
sketch3.AttachmentSupport = (doc.getObject("XY_Plane"), [""])
sketch3.MapMode = "FlatFace"
sketch3.addGeometry(Part.Circle(App.Vector(2428.5, 1880.2, 0), App.Vector(0, 0, 1), 1.8), False)
sketch3.addGeometry(Part.Circle(App.Vector(2338.5, 1880.2, 0), App.Vector(0, 0, 1), 1.8), False)
sketch3.addGeometry(Part.Circle(App.Vector(2428.5, 1760.2, 0), App.Vector(0, 0, 1), 1.8), False)
sketch3.addGeometry(Part.Circle(App.Vector(2338.5, 1760.2, 0), App.Vector(0, 0, 1), 1.8), False)
sketch3.addConstraint(Sketcher.Constraint("Equal", 0, 1))
sketch3.addConstraint(Sketcher.Constraint("Equal", 1, 2))
sketch3.addConstraint(Sketcher.Constraint("Equal", 2, 3))
sketch3.addConstraint(Sketcher.Constraint("Horizontal", 0, 3, 1, 3))
sketch3.addConstraint(Sketcher.Constraint("Horizontal", 2, 3, 3, 3))
sketch3.addConstraint(Sketcher.Constraint("Vertical", 0, 3, 2, 3))
sketch3.addConstraint(Sketcher.Constraint("Vertical", 1, 3, 3, 3))
sketch3.addConstraint(Sketcher.Constraint("Diameter", 0, Q("3.5 mm")))
sketch3.addConstraint(Sketcher.Constraint("DistanceX", 1, 3, 0, 3, Q("90 mm")))
sketch3.addConstraint(Sketcher.Constraint("DistanceY", 2, 3, 0, 3, Q("120 mm")))
sketch3.addConstraint(Sketcher.Constraint("DistanceX", -1, 1, 0, 3, Q("2428.510113 mm")))
sketch3.addConstraint(Sketcher.Constraint("DistanceY", -1, 1, 0, 3, Q("1880.172374 mm")))
pocket2 = body.newObject("PartDesign::Pocket", "Pocket001")
pocket2.Profile = sketch3
pocket2.Length = 10
pocket2.Reversed = True

# Sketch on XY plane
sketch4 = body.newObject("Sketcher::SketchObject", "Sketch003")
sketch4.AttachmentSupport = (doc.getObject("XY_Plane"), [""])
sketch4.MapMode = "FlatFace"
sketch4.addGeometry(Part.Circle(App.Vector(2445, 1965, 0), App.Vector(0, 0, 1), 1.8), False)
sketch4.addGeometry(Part.Circle(App.Vector(2425, 1965, 0), App.Vector(0, 0, 1), 1.8), False)
sketch4.addGeometry(Part.Circle(App.Vector(2444.9, 1924, 0), App.Vector(0, 0, 1), 1.8), False)
sketch4.addGeometry(Part.Circle(App.Vector(2424.9, 1924, 0), App.Vector(0, 0, 1), 1.8), False)
sketch4.addGeometry(Part.Circle(App.Vector(2404, 2005.1, 0), App.Vector(0, 0, 1), 1.8), False)
sketch4.addGeometry(Part.Circle(App.Vector(2363, 2005.1, 0), App.Vector(0, 0, 1), 1.8), False)
sketch4.addGeometry(Part.Circle(App.Vector(2404, 1985.1, 0), App.Vector(0, 0, 1), 1.8), False)
sketch4.addGeometry(Part.Circle(App.Vector(2363, 1985.1, 0), App.Vector(0, 0, 1), 1.8), False)
sketch4.addGeometry(Part.Circle(App.Vector(2342.1, 1965, 0), App.Vector(0, 0, 1), 1.8), False)
sketch4.addGeometry(Part.Circle(App.Vector(2322.1, 1965, 0), App.Vector(0, 0, 1), 1.8), False)
sketch4.addGeometry(Part.Circle(App.Vector(2342, 1924, 0), App.Vector(0, 0, 1), 1.8), False)
sketch4.addGeometry(Part.Circle(App.Vector(2322, 1924, 0), App.Vector(0, 0, 1), 1.8), False)
sketch4.addGeometry(Part.Circle(App.Vector(2442.9, 1947, 0), App.Vector(0, 0, 1), 1.8), False)
sketch4.addGeometry(Part.Circle(App.Vector(2427.1, 1947, 0), App.Vector(0, 0, 1), 1.8), False)
sketch4.addGeometry(Part.Circle(App.Vector(2340, 1947, 0), App.Vector(0, 0, 1), 1.8), False)
sketch4.addGeometry(Part.Circle(App.Vector(2324.2, 1947, 0), App.Vector(0, 0, 1), 1.8), False)
sketch4.addGeometry(Part.Circle(App.Vector(2383.5, 2003, 0), App.Vector(0, 0, 1), 1.8), False)
sketch4.addGeometry(Part.Circle(App.Vector(2383.5, 1987.2, 0), App.Vector(0, 0, 1), 1.8), False)
sketch4.addConstraint(Sketcher.Constraint("Equal", 0, 1))
sketch4.addConstraint(Sketcher.Constraint("Equal", 1, 2))
sketch4.addConstraint(Sketcher.Constraint("Equal", 2, 3))
sketch4.addConstraint(Sketcher.Constraint("Equal", 3, 4))
sketch4.addConstraint(Sketcher.Constraint("Equal", 4, 5))
sketch4.addConstraint(Sketcher.Constraint("Equal", 5, 6))
sketch4.addConstraint(Sketcher.Constraint("Equal", 6, 7))
sketch4.addConstraint(Sketcher.Constraint("Equal", 7, 8))
sketch4.addConstraint(Sketcher.Constraint("Equal", 8, 9))
sketch4.addConstraint(Sketcher.Constraint("Equal", 9, 10))
sketch4.addConstraint(Sketcher.Constraint("Equal", 10, 11))
sketch4.addConstraint(Sketcher.Constraint("Equal", 11, 12))
sketch4.addConstraint(Sketcher.Constraint("Equal", 12, 13))
sketch4.addConstraint(Sketcher.Constraint("Equal", 13, 14))
sketch4.addConstraint(Sketcher.Constraint("Equal", 14, 15))
sketch4.addConstraint(Sketcher.Constraint("Equal", 15, 16))
sketch4.addConstraint(Sketcher.Constraint("Equal", 16, 17))
sketch4.addConstraint(Sketcher.Constraint("Horizontal", 0, 3, 1, 3))
sketch4.addConstraint(Sketcher.Constraint("Horizontal", 2, 3, 3, 3))
sketch4.addConstraint(Sketcher.Constraint("Horizontal", 1, 3, 8, 3))
sketch4.addConstraint(Sketcher.Constraint("Horizontal", 8, 3, 9, 3))
sketch4.addConstraint(Sketcher.Constraint("Horizontal", 3, 3, 10, 3))
sketch4.addConstraint(Sketcher.Constraint("Horizontal", 10, 3, 11, 3))
sketch4.addConstraint(Sketcher.Constraint("Horizontal", 12, 3, 13, 3))
sketch4.addConstraint(Sketcher.Constraint("Horizontal", 13, 3, 14, 3))
sketch4.addConstraint(Sketcher.Constraint("Horizontal", 14, 3, 15, 3))
sketch4.addConstraint(Sketcher.Constraint("Vertical", 4, 3, 6, 3))
sketch4.addConstraint(Sketcher.Constraint("Vertical", 5, 3, 7, 3))
sketch4.addConstraint(Sketcher.Constraint("Vertical", 16, 3, 17, 3))
sketch4.addConstraint(Sketcher.Constraint("Diameter", 0, Q("3.5 mm")))
sketch4.addConstraint(Sketcher.Constraint("DistanceX", 1, 3, 0, 3, Q("20 mm")))
sketch4.addConstraint(Sketcher.Constraint("DistanceY", 2, 3, 0, 3, Q("41 mm")))
sketch4.addConstraint(Sketcher.Constraint("DistanceX", 3, 3, 2, 3, Q("20 mm")))
sketch4.addConstraint(Sketcher.Constraint("DistanceY", 6, 3, 4, 3, Q("20 mm")))
sketch4.addConstraint(Sketcher.Constraint("DistanceY", 7, 3, 5, 3, Q("20 mm")))
sketch4.addConstraint(Sketcher.Constraint("DistanceX", 9, 3, 8, 3, Q("20 mm")))
sketch4.addConstraint(Sketcher.Constraint("DistanceX", 11, 3, 10, 3, Q("20 mm")))
sketch4.addConstraint(Sketcher.Constraint("DistanceY", 12, 3, 0, 3, Q("18 mm")))
sketch4.addConstraint(Sketcher.Constraint("DistanceX", 12, 3, 0, 3, Q("2.1 mm")))
sketch4.addConstraint(Sketcher.Constraint("DistanceX", 13, 3, 12, 3, Q("15.8 mm")))
sketch4.addConstraint(Sketcher.Constraint("DistanceX", 14, 3, 8, 3, Q("2.1 mm")))
sketch4.addConstraint(Sketcher.Constraint("DistanceX", 15, 3, 14, 3, Q("15.8 mm")))
sketch4.addConstraint(Sketcher.Constraint("DistanceX", 16, 3, 4, 3, Q("20.5 mm")))
sketch4.addConstraint(Sketcher.Constraint("DistanceY", 16, 3, 4, 3, Q("2.1 mm")))
sketch4.addConstraint(Sketcher.Constraint("DistanceY", 17, 3, 16, 3, Q("15.8 mm")))
sketch4.addConstraint(Sketcher.Constraint("DistanceX", -1, 1, 0, 3, Q("2444.956091 mm")))
sketch4.addConstraint(Sketcher.Constraint("DistanceX", -1, 1, 5, 3, Q("2362.95012 mm")))
sketch4.addConstraint(Sketcher.Constraint("DistanceX", -1, 1, 8, 3, Q("2342.059241 mm")))
sketch4.addConstraint(Sketcher.Constraint("DistanceY", 4, 3, 5, 3, Q("0.01284 mm")))
sketch4.addConstraint(Sketcher.Constraint("DistanceX", 10, 3, 3, 3, Q("82.896851 mm")))
sketch4.addConstraint(Sketcher.Constraint("DistanceY", -1, 1, 0, 3, Q("1965.008782 mm")))
sketch4.addConstraint(Sketcher.Constraint("DistanceX", -1, 1, 2, 3, Q("2444.944526 mm")))
sketch4.addConstraint(Sketcher.Constraint("DistanceX", -1, 1, 4, 3, Q("2403.950118 mm")))
sketch4.addConstraint(Sketcher.Constraint("DistanceY", -1, 1, 4, 3, Q("2005.117496 mm")))
pocket3 = body.newObject("PartDesign::Pocket", "Pocket002")
pocket3.Profile = sketch4
pocket3.Length = 10
pocket3.Reversed = True

# Sketch on XY plane
sketch5 = body.newObject("Sketcher::SketchObject", "Sketch004")
sketch5.AttachmentSupport = (doc.getObject("XY_Plane"), [""])
sketch5.MapMode = "FlatFace"
sketch5.addGeometry(Part.Circle(App.Vector(2398.5, 1977.2, 0), App.Vector(0, 0, 1), 1.8), False)
sketch5.addGeometry(Part.Circle(App.Vector(2398.5, 1877.2, 0), App.Vector(0, 0, 1), 1.8), False)
sketch5.addGeometry(Part.Circle(App.Vector(2398.5, 1777.2, 0), App.Vector(0, 0, 1), 1.8), False)
sketch5.addGeometry(Part.Circle(App.Vector(2368.5, 1977.2, 0), App.Vector(0, 0, 1), 1.8), False)
sketch5.addGeometry(Part.Circle(App.Vector(2368.5, 1877.2, 0), App.Vector(0, 0, 1), 1.8), False)
sketch5.addGeometry(Part.Circle(App.Vector(2368.5, 1777.2, 0), App.Vector(0, 0, 1), 1.8), False)
sketch5.addConstraint(Sketcher.Constraint("Equal", 0, 1))
sketch5.addConstraint(Sketcher.Constraint("Equal", 1, 2))
sketch5.addConstraint(Sketcher.Constraint("Equal", 2, 3))
sketch5.addConstraint(Sketcher.Constraint("Equal", 3, 4))
sketch5.addConstraint(Sketcher.Constraint("Equal", 4, 5))
sketch5.addConstraint(Sketcher.Constraint("Vertical", 0, 3, 1, 3))
sketch5.addConstraint(Sketcher.Constraint("Vertical", 1, 3, 2, 3))
sketch5.addConstraint(Sketcher.Constraint("Vertical", 3, 3, 4, 3))
sketch5.addConstraint(Sketcher.Constraint("Vertical", 4, 3, 5, 3))
sketch5.addConstraint(Sketcher.Constraint("Diameter", 0, Q("3.5 mm")))
sketch5.addConstraint(Sketcher.Constraint("DistanceY", 1, 3, 0, 3, Q("100 mm")))
sketch5.addConstraint(Sketcher.Constraint("DistanceY", 2, 3, 1, 3, Q("100 mm")))
sketch5.addConstraint(Sketcher.Constraint("DistanceX", 3, 3, 0, 3, Q("30 mm")))
sketch5.addConstraint(Sketcher.Constraint("DistanceY", 4, 3, 3, 3, Q("100 mm")))
sketch5.addConstraint(Sketcher.Constraint("DistanceY", 5, 3, 4, 3, Q("100 mm")))
sketch5.addConstraint(Sketcher.Constraint("DistanceY", -1, 1, 0, 3, Q("1977.18051 mm")))
sketch5.addConstraint(Sketcher.Constraint("DistanceY", -1, 1, 3, 3, Q("1977.18863 mm")))
sketch5.addConstraint(Sketcher.Constraint("DistanceX", -1, 1, 0, 3, Q("2398.450118 mm")))
pocket4 = body.newObject("PartDesign::Pocket", "Pocket003")
pocket4.Profile = sketch5
pocket4.Length = 10
pocket4.Reversed = True

doc.recompute()
